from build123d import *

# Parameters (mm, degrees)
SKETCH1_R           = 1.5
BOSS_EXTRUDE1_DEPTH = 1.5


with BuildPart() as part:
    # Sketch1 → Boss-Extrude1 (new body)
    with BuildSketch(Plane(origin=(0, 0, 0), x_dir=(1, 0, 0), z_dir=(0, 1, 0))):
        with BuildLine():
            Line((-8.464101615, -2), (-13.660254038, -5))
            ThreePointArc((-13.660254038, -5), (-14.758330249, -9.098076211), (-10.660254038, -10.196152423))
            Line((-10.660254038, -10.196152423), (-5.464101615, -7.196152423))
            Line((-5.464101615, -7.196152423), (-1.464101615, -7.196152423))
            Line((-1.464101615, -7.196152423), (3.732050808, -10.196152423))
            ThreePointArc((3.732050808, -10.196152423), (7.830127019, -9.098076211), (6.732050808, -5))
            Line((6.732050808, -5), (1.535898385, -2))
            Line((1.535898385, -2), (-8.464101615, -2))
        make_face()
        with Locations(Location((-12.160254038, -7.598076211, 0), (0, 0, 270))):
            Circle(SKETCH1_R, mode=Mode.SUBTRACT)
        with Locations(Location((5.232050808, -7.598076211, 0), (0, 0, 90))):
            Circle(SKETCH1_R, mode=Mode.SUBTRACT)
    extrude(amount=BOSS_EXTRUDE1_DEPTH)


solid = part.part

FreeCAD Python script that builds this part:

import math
import FreeCAD as App
import Part
import Sketcher

doc = App.newDocument("Part")
body = doc.addObject("PartDesign::Body", "Body")

# Sketch on XZ plane
sketch1 = body.newObject("Sketcher::SketchObject", "Sketch")
sketch1.AttachmentSupport = (doc.getObject("XZ_Plane"), [""])
sketch1.MapMode = "FlatFace"
sketch1.addGeometry([
    Part.LineSegment(App.Vector(-8.5, 2, 0), App.Vector(-13.7, 5, 0)),  # 0
    Part.ArcOfCircle(Part.Circle(App.Vector(-12.2, 7.6, 0), App.Vector(0, 0, 1), 3), math.radians(60), math.radians(240)),  # 1
    Part.LineSegment(App.Vector(-10.7, 10.2, 0), App.Vector(-5.5, 7.2, 0)),  # 2
    Part.LineSegment(App.Vector(-5.5, 7.2, 0), App.Vector(-1.5, 7.2, 0)),  # 3
    Part.LineSegment(App.Vector(-1.5, 7.2, 0), App.Vector(3.7, 10.2, 0)),  # 4
    Part.ArcOfCircle(Part.Circle(App.Vector(5.2, 7.6, 0), App.Vector(0, 0, 1), 3), math.radians(-60), math.radians(120)),  # 5
    Part.LineSegment(App.Vector(6.7, 5, 0), App.Vector(1.5, 2, 0)),  # 6
    Part.LineSegment(App.Vector(1.5, 2, 0), App.Vector(-8.5, 2, 0)),  # 7
    Part.Circle(App.Vector(-12.2, 7.6, 0), App.Vector(0, 0, 1), 1.5),  # 8
    Part.Circle(App.Vector(5.2, 7.6, 0), App.Vector(0, 0, 1), 1.5),  # 9
], False)
sketch1.addConstraint([
    Sketcher.Constraint("Tangent", 0, 2, 1, 2),
    Sketcher.Constraint("Tangent", 1, 1, 2, 1),
    Sketcher.Constraint("Coincident", 2, 2, 3, 1),
    Sketcher.Constraint("Coincident", 3, 2, 4, 1),
    Sketcher.Constraint("Tangent", 4, 2, 5, 2),
    Sketcher.Constraint("Tangent", 5, 1, 6, 1),
    Sketcher.Constraint("Coincident", 6, 2, 7, 1),
    Sketcher.Constraint("Coincident", 7, 2, 0, 1),
    Sketcher.Constraint("Horizontal", 3),
    Sketcher.Constraint("Horizontal", 7),
    Sketcher.Constraint("Coincident", 8, 3, 1, 3),
    Sketcher.Constraint("Coincident", 9, 3, 5, 3),
    Sketcher.Constraint("Equal", 1, 5),
    Sketcher.Constraint("Equal", 8, 9),
    Sketcher.Constraint("Parallel", 0, 2),
    Sketcher.Constraint("Parallel", 4, 6),
    Sketcher.Constraint("Horizontal", 1, 3, 5, 3),
    Sketcher.Constraint("Horizontal", 1, 1, 4, 2),
    Sketcher.Constraint("Equal", 0, 2),
    Sketcher.Constraint("Diameter", 8, 3.0),
    Sketcher.Constraint("Radius", 1, 3.0),
    Sketcher.Constraint("DistanceX", 3, 1, 3, 2, 4.0),
    Sketcher.Constraint("DistanceX", 7, 2, 7, 1, 10.0),
    Sketcher.Constraint("Distance", 0, 6.0),
    Sketcher.Constraint("DistanceY", -1, 1, 0, 2, 5.0),
    Sketcher.Constraint("DistanceX", 2, 2, -1, 1, 5.464102),
])
pad1 = body.newObject("PartDesign::Pad", "Pad")
pad1.Profile = sketch1
pad1.Length = 1.5
pad1.Reversed = True

doc.recompute()
